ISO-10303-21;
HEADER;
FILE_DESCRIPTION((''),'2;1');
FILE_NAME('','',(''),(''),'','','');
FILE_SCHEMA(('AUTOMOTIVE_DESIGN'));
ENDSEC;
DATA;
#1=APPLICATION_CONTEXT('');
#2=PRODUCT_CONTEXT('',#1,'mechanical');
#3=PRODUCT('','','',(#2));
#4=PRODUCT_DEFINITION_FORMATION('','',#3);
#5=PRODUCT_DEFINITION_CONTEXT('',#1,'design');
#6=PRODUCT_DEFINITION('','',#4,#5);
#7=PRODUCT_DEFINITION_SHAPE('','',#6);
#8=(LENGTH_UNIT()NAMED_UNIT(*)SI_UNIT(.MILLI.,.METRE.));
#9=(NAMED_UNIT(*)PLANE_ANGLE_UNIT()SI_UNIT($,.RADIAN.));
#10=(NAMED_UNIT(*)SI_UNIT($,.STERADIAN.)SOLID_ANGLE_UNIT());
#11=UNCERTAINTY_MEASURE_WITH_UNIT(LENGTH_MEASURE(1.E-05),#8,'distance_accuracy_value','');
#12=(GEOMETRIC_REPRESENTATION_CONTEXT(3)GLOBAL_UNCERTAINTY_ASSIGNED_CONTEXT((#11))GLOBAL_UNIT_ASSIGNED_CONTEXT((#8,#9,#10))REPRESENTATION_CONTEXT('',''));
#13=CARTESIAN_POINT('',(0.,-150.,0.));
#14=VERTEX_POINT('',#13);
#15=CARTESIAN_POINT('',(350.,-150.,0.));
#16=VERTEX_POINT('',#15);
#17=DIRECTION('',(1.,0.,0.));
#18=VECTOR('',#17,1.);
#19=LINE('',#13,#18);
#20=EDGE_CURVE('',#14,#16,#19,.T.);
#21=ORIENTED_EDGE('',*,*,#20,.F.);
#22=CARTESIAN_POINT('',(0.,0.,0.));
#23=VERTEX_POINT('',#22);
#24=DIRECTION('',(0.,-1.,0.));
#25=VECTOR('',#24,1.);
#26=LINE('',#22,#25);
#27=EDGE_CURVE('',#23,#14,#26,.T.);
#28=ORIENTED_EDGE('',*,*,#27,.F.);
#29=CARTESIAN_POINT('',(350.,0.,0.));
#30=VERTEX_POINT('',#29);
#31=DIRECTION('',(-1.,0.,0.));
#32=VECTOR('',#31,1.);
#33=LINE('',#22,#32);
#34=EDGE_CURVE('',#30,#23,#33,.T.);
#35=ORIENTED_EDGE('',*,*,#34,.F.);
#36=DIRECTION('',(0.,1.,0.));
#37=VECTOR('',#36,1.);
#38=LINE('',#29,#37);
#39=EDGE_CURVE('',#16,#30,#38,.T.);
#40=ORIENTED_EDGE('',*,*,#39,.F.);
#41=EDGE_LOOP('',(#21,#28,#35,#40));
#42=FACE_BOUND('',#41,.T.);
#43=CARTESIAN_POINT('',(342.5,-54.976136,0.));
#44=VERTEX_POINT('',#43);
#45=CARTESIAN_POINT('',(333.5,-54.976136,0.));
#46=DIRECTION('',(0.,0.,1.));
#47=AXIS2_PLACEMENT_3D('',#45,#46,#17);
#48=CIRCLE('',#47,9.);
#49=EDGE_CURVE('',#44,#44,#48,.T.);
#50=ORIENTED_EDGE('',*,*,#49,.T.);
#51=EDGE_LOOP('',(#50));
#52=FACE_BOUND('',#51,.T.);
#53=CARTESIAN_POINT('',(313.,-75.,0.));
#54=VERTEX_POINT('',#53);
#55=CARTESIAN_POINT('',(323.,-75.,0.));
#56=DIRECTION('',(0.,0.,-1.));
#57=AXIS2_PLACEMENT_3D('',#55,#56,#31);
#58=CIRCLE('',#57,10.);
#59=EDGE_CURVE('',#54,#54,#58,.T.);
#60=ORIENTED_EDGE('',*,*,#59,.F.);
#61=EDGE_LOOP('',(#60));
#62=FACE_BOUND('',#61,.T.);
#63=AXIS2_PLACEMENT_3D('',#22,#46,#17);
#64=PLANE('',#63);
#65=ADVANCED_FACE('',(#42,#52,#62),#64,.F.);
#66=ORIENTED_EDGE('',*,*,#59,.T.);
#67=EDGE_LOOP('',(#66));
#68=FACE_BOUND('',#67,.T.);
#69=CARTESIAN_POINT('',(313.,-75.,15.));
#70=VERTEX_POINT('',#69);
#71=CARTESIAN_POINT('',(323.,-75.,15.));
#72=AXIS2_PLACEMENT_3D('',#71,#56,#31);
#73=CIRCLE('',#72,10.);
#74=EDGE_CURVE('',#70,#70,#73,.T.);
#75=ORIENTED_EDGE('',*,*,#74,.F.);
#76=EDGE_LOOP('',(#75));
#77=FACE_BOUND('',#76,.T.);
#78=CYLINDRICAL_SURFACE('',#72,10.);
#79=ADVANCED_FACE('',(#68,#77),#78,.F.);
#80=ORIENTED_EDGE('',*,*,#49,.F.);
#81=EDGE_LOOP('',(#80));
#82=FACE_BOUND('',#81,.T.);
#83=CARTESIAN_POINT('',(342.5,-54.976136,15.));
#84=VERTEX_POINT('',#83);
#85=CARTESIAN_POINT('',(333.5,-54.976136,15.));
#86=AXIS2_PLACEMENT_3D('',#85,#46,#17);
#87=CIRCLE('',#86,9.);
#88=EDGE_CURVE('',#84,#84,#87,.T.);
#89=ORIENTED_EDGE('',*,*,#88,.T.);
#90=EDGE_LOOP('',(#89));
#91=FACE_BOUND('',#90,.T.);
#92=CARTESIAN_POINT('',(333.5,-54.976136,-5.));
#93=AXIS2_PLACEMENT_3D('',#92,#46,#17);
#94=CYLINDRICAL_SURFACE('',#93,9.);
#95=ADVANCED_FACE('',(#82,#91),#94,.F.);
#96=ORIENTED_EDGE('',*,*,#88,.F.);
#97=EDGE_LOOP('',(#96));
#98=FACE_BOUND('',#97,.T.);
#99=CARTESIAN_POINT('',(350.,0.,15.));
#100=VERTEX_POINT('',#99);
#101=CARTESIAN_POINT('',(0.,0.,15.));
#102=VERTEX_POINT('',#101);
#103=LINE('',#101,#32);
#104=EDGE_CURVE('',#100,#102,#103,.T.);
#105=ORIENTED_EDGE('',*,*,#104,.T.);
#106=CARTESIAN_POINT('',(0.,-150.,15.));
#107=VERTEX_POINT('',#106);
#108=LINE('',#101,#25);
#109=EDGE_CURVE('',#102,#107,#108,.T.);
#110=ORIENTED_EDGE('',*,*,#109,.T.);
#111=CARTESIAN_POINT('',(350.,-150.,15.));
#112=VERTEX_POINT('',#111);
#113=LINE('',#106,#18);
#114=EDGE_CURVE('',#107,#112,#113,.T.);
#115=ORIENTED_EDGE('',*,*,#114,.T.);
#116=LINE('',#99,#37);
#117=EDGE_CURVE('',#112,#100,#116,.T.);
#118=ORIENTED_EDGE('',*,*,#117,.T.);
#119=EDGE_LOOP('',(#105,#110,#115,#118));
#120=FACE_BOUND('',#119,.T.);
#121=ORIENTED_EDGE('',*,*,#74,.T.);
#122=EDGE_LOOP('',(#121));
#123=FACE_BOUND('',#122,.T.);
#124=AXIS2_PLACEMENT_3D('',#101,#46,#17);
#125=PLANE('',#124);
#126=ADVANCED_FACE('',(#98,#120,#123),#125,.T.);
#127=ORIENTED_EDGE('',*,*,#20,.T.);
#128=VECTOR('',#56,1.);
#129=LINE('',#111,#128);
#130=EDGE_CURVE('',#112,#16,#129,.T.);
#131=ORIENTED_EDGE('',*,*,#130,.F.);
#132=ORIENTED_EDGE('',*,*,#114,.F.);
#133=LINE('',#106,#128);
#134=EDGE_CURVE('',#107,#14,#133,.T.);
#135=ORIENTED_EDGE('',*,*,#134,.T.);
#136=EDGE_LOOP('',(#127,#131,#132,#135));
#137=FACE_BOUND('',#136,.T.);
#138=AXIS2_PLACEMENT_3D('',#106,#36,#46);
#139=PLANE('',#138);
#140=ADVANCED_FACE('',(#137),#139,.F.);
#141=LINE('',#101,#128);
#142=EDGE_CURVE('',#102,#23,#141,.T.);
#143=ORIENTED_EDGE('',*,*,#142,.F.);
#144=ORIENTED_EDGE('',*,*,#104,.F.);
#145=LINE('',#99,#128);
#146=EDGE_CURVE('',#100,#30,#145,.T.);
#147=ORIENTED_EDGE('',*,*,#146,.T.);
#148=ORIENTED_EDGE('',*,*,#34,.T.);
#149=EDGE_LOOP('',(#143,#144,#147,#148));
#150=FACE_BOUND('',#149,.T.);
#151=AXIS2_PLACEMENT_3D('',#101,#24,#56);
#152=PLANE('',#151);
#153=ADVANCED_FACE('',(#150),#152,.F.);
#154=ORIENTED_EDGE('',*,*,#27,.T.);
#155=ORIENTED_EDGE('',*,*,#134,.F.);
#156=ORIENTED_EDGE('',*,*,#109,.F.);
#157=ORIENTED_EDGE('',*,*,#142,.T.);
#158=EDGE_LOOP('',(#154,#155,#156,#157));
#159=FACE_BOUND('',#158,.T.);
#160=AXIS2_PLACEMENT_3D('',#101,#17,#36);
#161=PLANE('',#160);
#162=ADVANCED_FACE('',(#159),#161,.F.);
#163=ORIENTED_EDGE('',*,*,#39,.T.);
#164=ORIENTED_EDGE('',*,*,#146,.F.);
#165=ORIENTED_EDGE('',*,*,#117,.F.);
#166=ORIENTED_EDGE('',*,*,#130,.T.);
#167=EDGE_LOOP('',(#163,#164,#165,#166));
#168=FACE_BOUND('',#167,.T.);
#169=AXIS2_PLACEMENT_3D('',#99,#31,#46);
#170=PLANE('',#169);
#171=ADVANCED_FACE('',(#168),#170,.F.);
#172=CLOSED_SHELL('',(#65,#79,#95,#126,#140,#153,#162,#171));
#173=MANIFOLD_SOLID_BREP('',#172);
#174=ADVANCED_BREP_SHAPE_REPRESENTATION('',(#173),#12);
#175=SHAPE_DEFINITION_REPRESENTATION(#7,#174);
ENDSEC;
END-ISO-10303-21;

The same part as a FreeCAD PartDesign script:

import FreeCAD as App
import Part
import Sketcher
from FreeCAD import Vector


def add_polygon(sketch, points):
    """Adds a closed chain of lines whose ends are joined by coincident constraints."""
    first, n = sketch.GeometryCount, len(points)
    for a, b in zip(points, points[1:] + points[:1]):
        sketch.addGeometry(Part.LineSegment(App.Vector(*a, 0), App.Vector(*b, 0)), False)
    for i in range(n):
        sketch.addConstraint(Sketcher.Constraint("Coincident", first + i, 2, first + (i + 1) % n, 1))

doc = App.newDocument("Part")
body = doc.addObject("PartDesign::Body", "Body")

# Sketch on XY plane
sketch1 = body.newObject("Sketcher::SketchObject", "Sketch")
sketch1.AttachmentSupport = (doc.getObject("XY_Plane"), [""])
sketch1.MapMode = "FlatFace"
add_polygon(sketch1, [(0, 0), (0, -150), (350, -150), (350, 0)])  # lines 0-3
sketch1.addConstraint(Sketcher.Constraint("Vertical", 0))
sketch1.addConstraint(Sketcher.Constraint("Horizontal", 1))
sketch1.addConstraint(Sketcher.Constraint("Vertical", 2))
sketch1.addConstraint(Sketcher.Constraint("Horizontal", 3))
sketch1.addConstraint(Sketcher.Constraint("Coincident", 3, 2, -1, 1))
sketch1.addConstraint(Sketcher.Constraint("DistanceX", 1, 1, 1, 2, 350.0))
sketch1.addConstraint(Sketcher.Constraint("DistanceY", 0, 2, 0, 1, 150.0))
pad1 = body.newObject("PartDesign::Pad", "Pad")
pad1.Profile = sketch1
pad1.Length = 15

# Sketch on XY plane
sketch2 = body.newObject("Sketcher::SketchObject", "Sketch001")
sketch2.AttachmentSupport = (doc.getObject("XY_Plane"), [""])
sketch2.MapMode = "FlatFace"
sketch2.addGeometry(Part.Circle(Vector(323, -75, 0), Vector(0, 0, 1), 10), False)
sketch2.addConstraint(Sketcher.Constraint("Diameter", 0, 20.0))
sketch2.addConstraint(Sketcher.Constraint("DistanceX", -1, 1, 0, 3, 323.0))
sketch2.addConstraint(Sketcher.Constraint("DistanceY", 0, 3, -1, 1, 75.0))
pocket1 = body.newObject("PartDesign::Pocket", "Pocket")
pocket1.Profile = sketch2
pocket1.Type = "ThroughAll"
pocket1.Reversed = True

# Sketch on XY plane
sketch3 = body.newObject("Sketcher::SketchObject", "Sketch002")
sketch3.AttachmentSupport = (doc.getObject("XY_Plane"), [""])
sketch3.MapMode = "FlatFace"
sketch3.AttachmentOffset = App.Placement(Vector(0, 0, 15), App.Rotation())
sketch3.addGeometry(Part.Circle(Vector(334, -55, 0), Vector(0, 0, 1), 9), False)
sketch3.addConstraint(Sketcher.Constraint("Diameter", 0, 18.0))
sketch3.addConstraint(Sketcher.Constraint("DistanceX", -1, 1, 0, 3, 333.5))
sketch3.addConstraint(Sketcher.Constraint("DistanceY", 0, 3, -1, 1, 54.976136))
pocket2 = body.newObject("PartDesign::Pocket", "Pocket001")
pocket2.Profile = sketch3
pocket2.Length = 20

doc.recompute()
